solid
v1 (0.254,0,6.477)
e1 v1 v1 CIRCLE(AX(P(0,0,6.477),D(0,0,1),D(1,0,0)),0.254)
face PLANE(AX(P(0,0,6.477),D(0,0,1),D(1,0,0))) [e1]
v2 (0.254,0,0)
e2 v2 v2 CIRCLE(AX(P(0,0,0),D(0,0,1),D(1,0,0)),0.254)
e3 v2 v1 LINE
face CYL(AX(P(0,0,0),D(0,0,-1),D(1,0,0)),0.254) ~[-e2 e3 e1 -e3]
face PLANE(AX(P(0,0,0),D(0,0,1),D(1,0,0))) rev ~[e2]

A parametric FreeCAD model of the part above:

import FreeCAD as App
import Part
import Sketcher
from FreeCAD import Vector
Q = App.Units.Quantity

doc = App.newDocument("Part")
body = doc.addObject("PartDesign::Body", "Body")

sketch1 = doc.addObject("Sketcher::SketchObject", "Sketch")
body.addObject(sketch1)
sketch1.AttachmentSupport = (doc.XY_Plane, [""])
sketch1.MapMode = "FlatFace"
sketch1.addGeometry(Part.Circle(Vector(0, 0, 0), Vector(0, 0, 1), 0.25), False)
sketch1.addConstraint([
    Sketcher.Constraint("Coincident", 0, 3, -1, 1),
    Sketcher.Constraint("Diameter", 0, Q("0.02 in")),
])
pad1 = doc.addObject("PartDesign::Pad", "Pad")
body.addObject(pad1)
pad1.Profile = sketch1
pad1.Length = Q("0.255 in")

doc.recompute()
